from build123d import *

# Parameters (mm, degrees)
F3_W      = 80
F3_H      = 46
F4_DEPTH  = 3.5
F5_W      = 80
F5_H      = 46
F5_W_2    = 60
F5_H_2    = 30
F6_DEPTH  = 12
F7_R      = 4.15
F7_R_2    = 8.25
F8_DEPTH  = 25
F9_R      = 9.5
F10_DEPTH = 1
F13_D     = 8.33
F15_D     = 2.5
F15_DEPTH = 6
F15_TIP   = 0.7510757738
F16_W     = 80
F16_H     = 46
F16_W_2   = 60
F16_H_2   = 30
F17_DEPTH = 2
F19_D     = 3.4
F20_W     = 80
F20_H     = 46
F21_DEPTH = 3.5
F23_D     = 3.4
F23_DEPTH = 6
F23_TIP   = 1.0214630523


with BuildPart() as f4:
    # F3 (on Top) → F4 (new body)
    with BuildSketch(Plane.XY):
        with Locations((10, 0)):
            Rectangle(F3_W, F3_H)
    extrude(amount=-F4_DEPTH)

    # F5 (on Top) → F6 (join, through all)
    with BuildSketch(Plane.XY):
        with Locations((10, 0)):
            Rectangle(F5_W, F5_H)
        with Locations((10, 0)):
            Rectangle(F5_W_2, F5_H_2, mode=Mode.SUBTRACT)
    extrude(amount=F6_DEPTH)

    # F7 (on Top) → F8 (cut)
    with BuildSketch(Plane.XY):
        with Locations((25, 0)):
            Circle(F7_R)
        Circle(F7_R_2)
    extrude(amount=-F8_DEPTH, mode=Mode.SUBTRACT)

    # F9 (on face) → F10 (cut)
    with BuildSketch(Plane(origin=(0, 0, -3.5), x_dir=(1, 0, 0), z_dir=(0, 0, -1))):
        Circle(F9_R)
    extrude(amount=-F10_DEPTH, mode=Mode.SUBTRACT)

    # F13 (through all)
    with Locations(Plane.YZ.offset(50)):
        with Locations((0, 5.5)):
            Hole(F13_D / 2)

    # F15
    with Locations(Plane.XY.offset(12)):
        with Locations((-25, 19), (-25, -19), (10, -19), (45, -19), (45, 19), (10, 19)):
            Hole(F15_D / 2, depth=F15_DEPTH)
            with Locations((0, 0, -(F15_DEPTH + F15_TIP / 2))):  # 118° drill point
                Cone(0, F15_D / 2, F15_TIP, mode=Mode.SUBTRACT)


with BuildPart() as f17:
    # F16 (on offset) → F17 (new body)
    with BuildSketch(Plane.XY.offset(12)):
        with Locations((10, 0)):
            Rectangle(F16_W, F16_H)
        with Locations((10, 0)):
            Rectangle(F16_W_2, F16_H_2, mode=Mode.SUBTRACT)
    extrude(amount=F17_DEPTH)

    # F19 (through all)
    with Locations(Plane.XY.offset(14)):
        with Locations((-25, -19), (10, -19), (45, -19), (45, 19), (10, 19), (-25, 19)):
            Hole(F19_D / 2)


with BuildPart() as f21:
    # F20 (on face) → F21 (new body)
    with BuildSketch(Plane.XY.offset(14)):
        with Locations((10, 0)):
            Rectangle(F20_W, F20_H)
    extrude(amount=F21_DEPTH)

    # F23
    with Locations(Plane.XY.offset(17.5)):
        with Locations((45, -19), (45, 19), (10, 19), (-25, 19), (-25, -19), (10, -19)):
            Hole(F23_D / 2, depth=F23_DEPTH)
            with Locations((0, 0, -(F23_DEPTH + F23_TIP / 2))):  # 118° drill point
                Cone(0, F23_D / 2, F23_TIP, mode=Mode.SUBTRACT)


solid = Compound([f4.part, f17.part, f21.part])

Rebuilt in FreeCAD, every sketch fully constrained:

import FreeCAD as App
import Part
import Sketcher

doc = App.newDocument("Part")
body = doc.addObject("PartDesign::Body", "Body")

sketch1 = doc.addObject("Sketcher::SketchObject", "Sketch")
body.addObject(sketch1)
sketch1.AttachmentSupport = (doc.XY_Plane, [""])
sketch1.MapMode = "FlatFace"
sketch1.addGeometry([
    Part.LineSegment(App.Vector(-30, 23, 0), App.Vector(-30, -23, 0)),
    Part.LineSegment(App.Vector(-30, -23, 0), App.Vector(50, -23, 0)),
    Part.LineSegment(App.Vector(50, -23, 0), App.Vector(50, 23, 0)),
    Part.LineSegment(App.Vector(50, 23, 0), App.Vector(-30, 23, 0)),
], False)
sketch1.addConstraint([
    Sketcher.Constraint("Coincident", 0, 2, 1, 1),
    Sketcher.Constraint("Coincident", 1, 2, 2, 1),
    Sketcher.Constraint("Coincident", 2, 2, 3, 1),
    Sketcher.Constraint("Coincident", 3, 2, 0, 1),
    Sketcher.Constraint("Vertical", 0),
    Sketcher.Constraint("Horizontal", 1),
    Sketcher.Constraint("Vertical", 2),
    Sketcher.Constraint("Horizontal", 3),
    Sketcher.Constraint("DistanceX", 1, 1, 1, 2, 80.0),
    Sketcher.Constraint("DistanceY", 0, 2, 0, 1, 46.0),
    Sketcher.Constraint("DistanceX", 0, 2, -1, 1, 30.0),
    Sketcher.Constraint("DistanceY", 0, 2, -1, 1, 23.0),
])
pad1 = doc.addObject("PartDesign::Pad", "Pad")
body.addObject(pad1)
pad1.Profile = sketch1
pad1.Length = 3.5
pad1.Reversed = True

sketch2 = doc.addObject("Sketcher::SketchObject", "Sketch001")
body.addObject(sketch2)
sketch2.AttachmentSupport = (doc.XY_Plane, [""])
sketch2.MapMode = "FlatFace"
sketch2.addGeometry([
    Part.LineSegment(App.Vector(-30, 23, 0), App.Vector(-30, -23, 0)),
    Part.LineSegment(App.Vector(-30, -23, 0), App.Vector(50, -23, 0)),
    Part.LineSegment(App.Vector(50, -23, 0), App.Vector(50, 23, 0)),
    Part.LineSegment(App.Vector(50, 23, 0), App.Vector(-30, 23, 0)),
    Part.LineSegment(App.Vector(40, -15, 0), App.Vector(-20, -15, 0)),
    Part.LineSegment(App.Vector(-20, -15, 0), App.Vector(-20, 15, 0)),
    Part.LineSegment(App.Vector(-20, 15, 0), App.Vector(40, 15, 0)),
    Part.LineSegment(App.Vector(40, 15, 0), App.Vector(40, -15, 0)),
], False)
sketch2.addConstraint([
    Sketcher.Constraint("Coincident", 0, 2, 1, 1),
    Sketcher.Constraint("Coincident", 1, 2, 2, 1),
    Sketcher.Constraint("Coincident", 2, 2, 3, 1),
    Sketcher.Constraint("Coincident", 3, 2, 0, 1),
    Sketcher.Constraint("Coincident", 4, 2, 5, 1),
    Sketcher.Constraint("Coincident", 5, 2, 6, 1),
    Sketcher.Constraint("Coincident", 6, 2, 7, 1),
    Sketcher.Constraint("Coincident", 7, 2, 4, 1),
    Sketcher.Constraint("Vertical", 0),
    Sketcher.Constraint("Horizontal", 1),
    Sketcher.Constraint("Vertical", 2),
    Sketcher.Constraint("Horizontal", 3),
    Sketcher.Constraint("Horizontal", 4),
    Sketcher.Constraint("Vertical", 5),
    Sketcher.Constraint("Horizontal", 6),
    Sketcher.Constraint("Vertical", 7),
    Sketcher.Constraint("DistanceX", 1, 1, 1, 2, 80.0),
    Sketcher.Constraint("DistanceX", 4, 2, 4, 1, 60.0),
    Sketcher.Constraint("DistanceY", 0, 2, 0, 1, 46.0),
    Sketcher.Constraint("DistanceY", 5, 1, 5, 2, 30.0),
    Sketcher.Constraint("DistanceX", 0, 2, -1, 1, 30.0),
    Sketcher.Constraint("DistanceY", 0, 2, -1, 1, 23.0),
    Sketcher.Constraint("DistanceX", 4, 2, -1, 1, 20.0),
    Sketcher.Constraint("DistanceY", 4, 2, -1, 1, 15.0),
])
pad2 = doc.addObject("PartDesign::Pad", "Pad001")
body.addObject(pad2)
pad2.Profile = sketch2
pad2.Length = 12

sketch3 = doc.addObject("Sketcher::SketchObject", "Sketch002")
body.addObject(sketch3)
sketch3.AttachmentSupport = (doc.XY_Plane, [""])
sketch3.MapMode = "FlatFace"
sketch3.addGeometry([
    Part.Circle(App.Vector(25, 0, 0), App.Vector(0, 0, 1), 4.2),
    Part.Circle(App.Vector(0, 0, 0), App.Vector(0, 0, 1), 8.2),
], False)
sketch3.addConstraint([
    Sketcher.Constraint("Coincident", 1, 3, -1, 1),
    Sketcher.Constraint("PointOnObject", 0, 3, -1),
    Sketcher.Constraint("Diameter", 0, 8.3),
    Sketcher.Constraint("Diameter", 1, 16.5),
    Sketcher.Constraint("DistanceX", -1, 1, 0, 3, 25.0),
])
pocket1 = doc.addObject("PartDesign::Pocket", "Pocket")
body.addObject(pocket1)
pocket1.Profile = sketch3
pocket1.Length = 25

sketch4 = doc.addObject("Sketcher::SketchObject", "Sketch003")
body.addObject(sketch4)
sketch4.AttachmentSupport = (doc.XY_Plane, [""])
sketch4.MapMode = "FlatFace"
sketch4.AttachmentOffset = App.Placement(App.Vector(0, 0, -3.5), App.Rotation())
sketch4.addGeometry(Part.Circle(App.Vector(0, 0, 0), App.Vector(0, 0, 1), 10), False)
sketch4.addConstraint([
    Sketcher.Constraint("Coincident", 0, 3, -1, 1),
    Sketcher.Constraint("Diameter", 0, 19.0),
])
pocket2 = doc.addObject("PartDesign::Pocket", "Pocket001")
body.addObject(pocket2)
pocket2.Profile = sketch4
pocket2.Length = 1
pocket2.Reversed = True

sketch5 = doc.addObject("Sketcher::SketchObject", "Sketch004")
body.addObject(sketch5)
sketch5.AttachmentSupport = (doc.YZ_Plane, [""])
sketch5.MapMode = "FlatFace"
sketch5.AttachmentOffset = App.Placement(App.Vector(0, 0, 50), App.Rotation())
sketch5.addGeometry(Part.Circle(App.Vector(0, 5.5, 0), App.Vector(0, 0, 1), 4.2), False)
sketch5.addConstraint([
    Sketcher.Constraint("PointOnObject", 0, 3, -2),
    Sketcher.Constraint("Diameter", 0, 8.33),
    Sketcher.Constraint("DistanceY", -1, 1, 0, 3, 5.5),
])
doc.recompute()
hole = doc.addObject("PartDesign::Hole", "Hole")
body.addObject(hole)
hole.Profile = sketch5
hole.ThreadType = "None"
hole.Diameter = 8.33
hole.DepthType = "ThroughAll"

sketch6 = doc.addObject("Sketcher::SketchObject", "Sketch005")
body.addObject(sketch6)
sketch6.AttachmentSupport = (doc.XY_Plane, [""])
sketch6.MapMode = "FlatFace"
sketch6.AttachmentOffset = App.Placement(App.Vector(0, 0, 12), App.Rotation())
sketch6.addGeometry([
    Part.Circle(App.Vector(-25, 19, 0), App.Vector(0, 0, 1), 1.2),
    Part.Circle(App.Vector(-25, -19, 0), App.Vector(0, 0, 1), 1.2),
    Part.Circle(App.Vector(10, -19, 0), App.Vector(0, 0, 1), 1.2),
    Part.Circle(App.Vector(45, -19, 0), App.Vector(0, 0, 1), 1.2),
    Part.Circle(App.Vector(45, 19, 0), App.Vector(0, 0, 1), 1.2),
    Part.Circle(App.Vector(10, 19, 0), App.Vector(0, 0, 1), 1.2),
], False)
sketch6.addConstraint([
    Sketcher.Constraint("Equal", 0, 1),
    Sketcher.Constraint("Equal", 1, 2),
    Sketcher.Constraint("Equal", 2, 3),
    Sketcher.Constraint("Equal", 3, 4),
    Sketcher.Constraint("Equal", 4, 5),
    Sketcher.Constraint("Symmetric", 0, 3, 1, 3, -1),
    Sketcher.Constraint("Symmetric", 3, 3, 4, 3, -1),
    Sketcher.Constraint("Symmetric", 2, 3, 5, 3, -1),
    Sketcher.Constraint("Horizontal", 1, 3, 2, 3),
    Sketcher.Constraint("Horizontal", 2, 3, 3, 3),
    Sketcher.Constraint("Diameter", 0, 2.5),
    Sketcher.Constraint("DistanceX", 0, 3, -1, 1, 25.0),
    Sketcher.Constraint("DistanceY", -1, 1, 0, 3, 19.0),
    Sketcher.Constraint("DistanceX", -1, 1, 2, 3, 10.0),
    Sketcher.Constraint("DistanceX", -1, 1, 3, 3, 45.0),
])
doc.recompute()
hole2 = doc.addObject("PartDesign::Hole", "Hole001")
body.addObject(hole2)
hole2.Profile = sketch6
hole2.ThreadType = "None"
hole2.Diameter = 2.5
hole2.DepthType = "Dimension"
hole2.Depth = 6
hole2.DrillPoint = "Angled"
hole2.DrillPointAngle = 118
body2 = doc.addObject("PartDesign::Body", "Body001")

sketch7 = doc.addObject("Sketcher::SketchObject", "Sketch006")
body2.addObject(sketch7)
sketch7.AttachmentSupport = (doc.getObject("XY_Plane001"), [""])
sketch7.MapMode = "FlatFace"
sketch7.AttachmentOffset = App.Placement(App.Vector(0, 0, 12), App.Rotation())
sketch7.addGeometry([
    Part.LineSegment(App.Vector(-30, 23, 0), App.Vector(-30, -23, 0)),
    Part.LineSegment(App.Vector(-30, -23, 0), App.Vector(50, -23, 0)),
    Part.LineSegment(App.Vector(50, -23, 0), App.Vector(50, 23, 0)),
    Part.LineSegment(App.Vector(50, 23, 0), App.Vector(-30, 23, 0)),
    Part.LineSegment(App.Vector(40, -15, 0), App.Vector(-20, -15, 0)),
    Part.LineSegment(App.Vector(-20, -15, 0), App.Vector(-20, 15, 0)),
    Part.LineSegment(App.Vector(-20, 15, 0), App.Vector(40, 15, 0)),
    Part.LineSegment(App.Vector(40, 15, 0), App.Vector(40, -15, 0)),
], False)
sketch7.addConstraint([
    Sketcher.Constraint("Coincident", 0, 2, 1, 1),
    Sketcher.Constraint("Coincident", 1, 2, 2, 1),
    Sketcher.Constraint("Coincident", 2, 2, 3, 1),
    Sketcher.Constraint("Coincident", 3, 2, 0, 1),
    Sketcher.Constraint("Coincident", 4, 2, 5, 1),
    Sketcher.Constraint("Coincident", 5, 2, 6, 1),
    Sketcher.Constraint("Coincident", 6, 2, 7, 1),
    Sketcher.Constraint("Coincident", 7, 2, 4, 1),
    Sketcher.Constraint("Vertical", 0),
    Sketcher.Constraint("Horizontal", 1),
    Sketcher.Constraint("Vertical", 2),
    Sketcher.Constraint("Horizontal", 3),
    Sketcher.Constraint("Horizontal", 4),
    Sketcher.Constraint("Vertical", 5),
    Sketcher.Constraint("Horizontal", 6),
    Sketcher.Constraint("Vertical", 7),
    Sketcher.Constraint("DistanceX", 1, 1, 1, 2, 80.0),
    Sketcher.Constraint("DistanceX", 4, 2, 4, 1, 60.0),
    Sketcher.Constraint("DistanceY", 0, 2, 0, 1, 46.0),
    Sketcher.Constraint("DistanceY", 5, 1, 5, 2, 30.0),
    Sketcher.Constraint("DistanceX", 0, 2, -1, 1, 30.0),
    Sketcher.Constraint("DistanceY", 0, 2, -1, 1, 23.0),
    Sketcher.Constraint("DistanceX", 4, 2, -1, 1, 20.0),
    Sketcher.Constraint("DistanceY", 4, 2, -1, 1, 15.0),
])
pad3 = doc.addObject("PartDesign::Pad", "Pad002")
body2.addObject(pad3)
pad3.Profile = sketch7
pad3.Length = 2

sketch8 = doc.addObject("Sketcher::SketchObject", "Sketch007")
body2.addObject(sketch8)
sketch8.AttachmentSupport = (doc.getObject("XY_Plane001"), [""])
sketch8.MapMode = "FlatFace"
sketch8.AttachmentOffset = App.Placement(App.Vector(0, 0, 14), App.Rotation())
sketch8.addGeometry([
    Part.Circle(App.Vector(-25, -19, 0), App.Vector(0, 0, 1), 1.7),
    Part.Circle(App.Vector(10, -19, 0), App.Vector(0, 0, 1), 1.7),
    Part.Circle(App.Vector(45, -19, 0), App.Vector(0, 0, 1), 1.7),
    Part.Circle(App.Vector(45, 19, 0), App.Vector(0, 0, 1), 1.7),
    Part.Circle(App.Vector(10, 19, 0), App.Vector(0, 0, 1), 1.7),
    Part.Circle(App.Vector(-25, 19, 0), App.Vector(0, 0, 1), 1.7),
], False)
sketch8.addConstraint([
    Sketcher.Constraint("Equal", 0, 1),
    Sketcher.Constraint("Equal", 1, 2),
    Sketcher.Constraint("Equal", 2, 3),
    Sketcher.Constraint("Equal", 3, 4),
    Sketcher.Constraint("Equal", 4, 5),
    Sketcher.Constraint("Symmetric", 2, 3, 3, 3, -1),
    Sketcher.Constraint("Symmetric", 1, 3, 4, 3, -1),
    Sketcher.Constraint("Symmetric", 0, 3, 5, 3, -1),
    Sketcher.Constraint("Horizontal", 0, 3, 1, 3),
    Sketcher.Constraint("Horizontal", 1, 3, 2, 3),
    Sketcher.Constraint("Diameter", 0, 3.4),
    Sketcher.Constraint("DistanceX", 0, 3, -1, 1, 25.0),
    Sketcher.Constraint("DistanceY", 0, 3, -1, 1, 19.0),
    Sketcher.Constraint("DistanceX", -1, 1, 1, 3, 10.0),
    Sketcher.Constraint("DistanceX", -1, 1, 2, 3, 45.0),
])
doc.recompute()
hole3 = doc.addObject("PartDesign::Hole", "Hole002")
body2.addObject(hole3)
hole3.Profile = sketch8
hole3.ThreadType = "None"
hole3.Diameter = 3.4
hole3.DepthType = "ThroughAll"
body3 = doc.addObject("PartDesign::Body", "Body002")

sketch9 = doc.addObject("Sketcher::SketchObject", "Sketch008")
body3.addObject(sketch9)
sketch9.AttachmentSupport = (doc.getObject("XY_Plane002"), [""])
sketch9.MapMode = "FlatFace"
sketch9.AttachmentOffset = App.Placement(App.Vector(0, 0, 14), App.Rotation())
sketch9.addGeometry([
    Part.LineSegment(App.Vector(-30, 23, 0), App.Vector(-30, -23, 0)),
    Part.LineSegment(App.Vector(-30, -23, 0), App.Vector(50, -23, 0)),
    Part.LineSegment(App.Vector(50, -23, 0), App.Vector(50, 23, 0)),
    Part.LineSegment(App.Vector(50, 23, 0), App.Vector(-30, 23, 0)),
], False)
sketch9.addConstraint([
    Sketcher.Constraint("Coincident", 0, 2, 1, 1),
    Sketcher.Constraint("Coincident", 1, 2, 2, 1),
    Sketcher.Constraint("Coincident", 2, 2, 3, 1),
    Sketcher.Constraint("Coincident", 3, 2, 0, 1),
    Sketcher.Constraint("Vertical", 0),
    Sketcher.Constraint("Horizontal", 1),
    Sketcher.Constraint("Vertical", 2),
    Sketcher.Constraint("Horizontal", 3),
    Sketcher.Constraint("DistanceX", 1, 1, 1, 2, 80.0),
    Sketcher.Constraint("DistanceY", 0, 2, 0, 1, 46.0),
    Sketcher.Constraint("DistanceX", 0, 2, -1, 1, 30.0),
    Sketcher.Constraint("DistanceY", 0, 2, -1, 1, 23.0),
])
pad4 = doc.addObject("PartDesign::Pad", "Pad003")
body3.addObject(pad4)
pad4.Profile = sketch9
pad4.Length = 3.5

sketch10 = doc.addObject("Sketcher::SketchObject", "Sketch009")
body3.addObject(sketch10)
sketch10.AttachmentSupport = (doc.getObject("XY_Plane002"), [""])
sketch10.MapMode = "FlatFace"
sketch10.AttachmentOffset = App.Placement(App.Vector(0, 0, 17.5), App.Rotation())
sketch10.addGeometry([
    Part.Circle(App.Vector(45, -19, 0), App.Vector(0, 0, 1), 1.7),
    Part.Circle(App.Vector(45, 19, 0), App.Vector(0, 0, 1), 1.7),
    Part.Circle(App.Vector(10, 19, 0), App.Vector(0, 0, 1), 1.7),
    Part.Circle(App.Vector(-25, 19, 0), App.Vector(0, 0, 1), 1.7),
    Part.Circle(App.Vector(-25, -19, 0), App.Vector(0, 0, 1), 1.7),
    Part.Circle(App.Vector(10, -19, 0), App.Vector(0, 0, 1), 1.7),
], False)
sketch10.addConstraint([
    Sketcher.Constraint("Equal", 0, 1),
    Sketcher.Constraint("Equal", 1, 2),
    Sketcher.Constraint("Equal", 2, 3),
    Sketcher.Constraint("Equal", 3, 4),
    Sketcher.Constraint("Equal", 4, 5),
    Sketcher.Constraint("Symmetric", 0, 3, 1, 3, -1),
    Sketcher.Constraint("Symmetric", 3, 3, 4, 3, -1),
    Sketcher.Constraint("Symmetric", 2, 3, 5, 3, -1),
    Sketcher.Constraint("Horizontal", 1, 3, 2, 3),
    Sketcher.Constraint("Horizontal", 2, 3, 3, 3),
    Sketcher.Constraint("Diameter", 0, 3.4),
    Sketcher.Constraint("DistanceX", -1, 1, 0, 3, 45.0),
    Sketcher.Constraint("DistanceY", 0, 3, -1, 1, 19.0),
    Sketcher.Constraint("DistanceX", -1, 1, 2, 3, 10.0),
    Sketcher.Constraint("DistanceX", 3, 3, -1, 1, 25.0),
])
doc.recompute()
hole4 = doc.addObject("PartDesign::Hole", "Hole003")
body3.addObject(hole4)
hole4.Profile = sketch10
hole4.ThreadType = "None"
hole4.Diameter = 3.4
hole4.DepthType = "Dimension"
hole4.Depth = 6
hole4.DrillPoint = "Angled"
hole4.DrillPointAngle = 118

doc.recompute()
